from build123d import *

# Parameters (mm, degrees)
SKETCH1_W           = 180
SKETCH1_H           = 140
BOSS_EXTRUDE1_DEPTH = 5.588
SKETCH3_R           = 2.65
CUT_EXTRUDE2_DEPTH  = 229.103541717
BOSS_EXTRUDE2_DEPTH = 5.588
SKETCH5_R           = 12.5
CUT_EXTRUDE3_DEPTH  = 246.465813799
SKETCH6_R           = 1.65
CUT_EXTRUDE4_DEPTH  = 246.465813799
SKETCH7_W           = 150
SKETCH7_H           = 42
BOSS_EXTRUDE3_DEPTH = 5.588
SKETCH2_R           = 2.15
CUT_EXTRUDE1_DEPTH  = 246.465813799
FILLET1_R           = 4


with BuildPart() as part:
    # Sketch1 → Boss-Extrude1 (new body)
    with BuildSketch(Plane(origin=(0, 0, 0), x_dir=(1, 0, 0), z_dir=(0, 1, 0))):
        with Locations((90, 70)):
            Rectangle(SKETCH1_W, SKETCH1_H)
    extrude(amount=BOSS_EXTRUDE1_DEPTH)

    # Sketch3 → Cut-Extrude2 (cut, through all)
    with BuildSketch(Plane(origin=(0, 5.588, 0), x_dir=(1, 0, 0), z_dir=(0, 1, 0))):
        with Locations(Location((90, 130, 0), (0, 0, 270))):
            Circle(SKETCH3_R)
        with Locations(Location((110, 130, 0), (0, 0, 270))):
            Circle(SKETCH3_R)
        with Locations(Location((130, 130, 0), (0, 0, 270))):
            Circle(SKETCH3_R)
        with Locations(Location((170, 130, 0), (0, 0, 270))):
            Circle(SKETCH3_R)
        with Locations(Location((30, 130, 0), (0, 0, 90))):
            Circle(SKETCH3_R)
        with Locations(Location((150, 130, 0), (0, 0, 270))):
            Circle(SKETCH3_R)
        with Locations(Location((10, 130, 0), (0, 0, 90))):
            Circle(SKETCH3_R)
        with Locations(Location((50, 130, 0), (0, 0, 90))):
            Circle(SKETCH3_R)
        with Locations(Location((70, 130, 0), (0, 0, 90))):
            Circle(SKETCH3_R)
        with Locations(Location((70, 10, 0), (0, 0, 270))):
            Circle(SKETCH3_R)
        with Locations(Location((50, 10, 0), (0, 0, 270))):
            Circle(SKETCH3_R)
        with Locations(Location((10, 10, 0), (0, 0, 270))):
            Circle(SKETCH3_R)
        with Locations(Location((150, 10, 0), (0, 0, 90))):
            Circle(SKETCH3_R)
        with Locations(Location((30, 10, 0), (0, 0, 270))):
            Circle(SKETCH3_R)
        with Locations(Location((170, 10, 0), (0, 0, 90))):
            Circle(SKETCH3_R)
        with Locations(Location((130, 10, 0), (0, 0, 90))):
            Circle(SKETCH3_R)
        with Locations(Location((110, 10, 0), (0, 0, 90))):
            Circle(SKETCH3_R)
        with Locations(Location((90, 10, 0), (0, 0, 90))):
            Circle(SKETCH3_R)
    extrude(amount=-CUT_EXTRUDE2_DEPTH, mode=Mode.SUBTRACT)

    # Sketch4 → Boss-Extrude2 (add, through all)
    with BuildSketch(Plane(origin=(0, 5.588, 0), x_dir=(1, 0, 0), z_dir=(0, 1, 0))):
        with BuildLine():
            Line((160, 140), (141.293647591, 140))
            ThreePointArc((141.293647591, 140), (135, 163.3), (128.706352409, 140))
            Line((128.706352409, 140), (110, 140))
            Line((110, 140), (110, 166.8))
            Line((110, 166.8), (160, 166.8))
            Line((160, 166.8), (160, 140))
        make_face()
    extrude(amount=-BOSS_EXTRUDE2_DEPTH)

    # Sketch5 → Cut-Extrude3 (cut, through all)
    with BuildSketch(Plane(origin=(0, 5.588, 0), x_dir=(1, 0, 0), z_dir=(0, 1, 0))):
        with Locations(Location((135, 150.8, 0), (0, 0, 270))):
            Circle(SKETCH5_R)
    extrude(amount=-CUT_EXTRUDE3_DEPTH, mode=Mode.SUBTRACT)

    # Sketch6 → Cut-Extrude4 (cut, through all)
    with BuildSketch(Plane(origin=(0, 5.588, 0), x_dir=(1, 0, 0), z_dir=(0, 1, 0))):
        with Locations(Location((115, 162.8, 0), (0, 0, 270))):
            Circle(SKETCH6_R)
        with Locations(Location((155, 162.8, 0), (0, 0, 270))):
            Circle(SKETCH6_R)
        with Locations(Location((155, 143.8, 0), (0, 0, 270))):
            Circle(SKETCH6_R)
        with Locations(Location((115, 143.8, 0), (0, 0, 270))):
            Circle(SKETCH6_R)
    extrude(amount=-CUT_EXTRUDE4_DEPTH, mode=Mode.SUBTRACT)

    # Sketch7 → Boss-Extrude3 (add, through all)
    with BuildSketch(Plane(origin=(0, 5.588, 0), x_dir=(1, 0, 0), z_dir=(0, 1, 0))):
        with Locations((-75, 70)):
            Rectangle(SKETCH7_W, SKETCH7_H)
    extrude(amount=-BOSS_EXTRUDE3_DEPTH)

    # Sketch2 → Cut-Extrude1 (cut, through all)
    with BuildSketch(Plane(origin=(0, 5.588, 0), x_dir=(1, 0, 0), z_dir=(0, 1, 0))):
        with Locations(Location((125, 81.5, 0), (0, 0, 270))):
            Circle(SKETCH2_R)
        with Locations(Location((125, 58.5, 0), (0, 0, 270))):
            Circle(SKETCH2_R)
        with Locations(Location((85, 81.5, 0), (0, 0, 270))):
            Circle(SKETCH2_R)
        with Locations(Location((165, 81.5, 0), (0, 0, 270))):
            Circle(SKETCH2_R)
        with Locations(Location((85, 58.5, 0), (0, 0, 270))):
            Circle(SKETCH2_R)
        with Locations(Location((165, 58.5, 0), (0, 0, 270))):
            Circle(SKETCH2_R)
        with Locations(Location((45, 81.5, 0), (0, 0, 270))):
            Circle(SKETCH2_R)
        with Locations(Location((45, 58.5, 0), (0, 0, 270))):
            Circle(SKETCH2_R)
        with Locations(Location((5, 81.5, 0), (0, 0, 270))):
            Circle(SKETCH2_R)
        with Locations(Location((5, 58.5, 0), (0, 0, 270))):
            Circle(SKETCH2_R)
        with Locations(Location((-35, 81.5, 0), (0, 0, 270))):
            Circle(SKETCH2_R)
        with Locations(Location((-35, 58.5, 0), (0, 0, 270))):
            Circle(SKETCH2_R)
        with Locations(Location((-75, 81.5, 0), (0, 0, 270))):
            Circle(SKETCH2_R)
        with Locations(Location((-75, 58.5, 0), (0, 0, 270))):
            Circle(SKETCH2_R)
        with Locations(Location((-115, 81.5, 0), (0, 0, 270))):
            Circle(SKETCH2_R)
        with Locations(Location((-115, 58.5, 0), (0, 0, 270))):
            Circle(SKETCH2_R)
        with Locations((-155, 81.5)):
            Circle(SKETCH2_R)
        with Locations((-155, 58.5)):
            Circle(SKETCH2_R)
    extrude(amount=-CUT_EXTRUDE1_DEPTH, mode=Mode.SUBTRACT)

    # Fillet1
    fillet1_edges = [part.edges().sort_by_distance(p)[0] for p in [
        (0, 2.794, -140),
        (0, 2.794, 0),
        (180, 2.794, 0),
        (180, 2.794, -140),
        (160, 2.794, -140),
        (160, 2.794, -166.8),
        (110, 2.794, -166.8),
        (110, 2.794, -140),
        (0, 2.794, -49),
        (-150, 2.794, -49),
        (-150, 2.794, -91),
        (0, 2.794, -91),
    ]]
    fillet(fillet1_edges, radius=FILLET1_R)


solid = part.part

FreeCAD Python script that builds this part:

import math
import FreeCAD as App
import Part
import Sketcher


def edges_at(feature, points):
    """Names of the edges that pass closest to the given points."""
    edges = feature.Shape.Edges
    near = lambda p: min(range(len(edges)), key=lambda i: edges[i].distToShape(Part.Vertex(*p))[0])
    return sorted({f"Edge{near(p) + 1}" for p in points})

doc = App.newDocument("Part")
body = doc.addObject("PartDesign::Body", "Body")

sketch1 = body.newObject("Sketcher::SketchObject", "Sketch")
sketch1.AttachmentSupport = (doc.getObject("XZ_Plane"), [""])
sketch1.MapMode = "FlatFace"
sketch1.addGeometry([
    Part.LineSegment(App.Vector(0, -140, 0), App.Vector(0, 0, 0)),
    Part.LineSegment(App.Vector(0, 0, 0), App.Vector(180, 0, 0)),
    Part.LineSegment(App.Vector(180, 0, 0), App.Vector(180, -140, 0)),
    Part.LineSegment(App.Vector(180, -140, 0), App.Vector(0, -140, 0)),
], False)
sketch1.addConstraint([
    Sketcher.Constraint("Coincident", 0, 2, 1, 1),
    Sketcher.Constraint("Coincident", 1, 2, 2, 1),
    Sketcher.Constraint("Coincident", 2, 2, 3, 1),
    Sketcher.Constraint("Coincident", 3, 2, 0, 1),
    Sketcher.Constraint("Vertical", 0),
    Sketcher.Constraint("Horizontal", 1),
    Sketcher.Constraint("Vertical", 2),
    Sketcher.Constraint("Horizontal", 3),
    Sketcher.Constraint("Coincident", 0, 2, -1, 1),
    Sketcher.Constraint("DistanceX", 1, 1, 1, 2, 180.0),
    Sketcher.Constraint("DistanceY", 0, 1, 0, 2, 140.0),
])
pad1 = body.newObject("PartDesign::Pad", "Pad")
pad1.Profile = sketch1
pad1.Length = 5.588
pad1.Reversed = True

sketch2 = body.newObject("Sketcher::SketchObject", "Sketch001")
sketch2.AttachmentSupport = (doc.getObject("XZ_Plane"), [""])
sketch2.MapMode = "FlatFace"
sketch2.AttachmentOffset = App.Placement(App.Vector(0, 0, -5.588), App.Rotation())
sketch2.addGeometry([
    Part.Circle(App.Vector(90, -130, 0), App.Vector(0, 0, 1), 2.6),
    Part.Circle(App.Vector(110, -130, 0), App.Vector(0, 0, 1), 2.6),
    Part.Circle(App.Vector(130, -130, 0), App.Vector(0, 0, 1), 2.6),
    Part.Circle(App.Vector(170, -130, 0), App.Vector(0, 0, 1), 2.6),
    Part.Circle(App.Vector(30, -130, 0), App.Vector(0, 0, 1), 2.6),
    Part.Circle(App.Vector(150, -130, 0), App.Vector(0, 0, 1), 2.6),
    Part.Circle(App.Vector(10, -130, 0), App.Vector(0, 0, 1), 2.6),
    Part.Circle(App.Vector(50, -130, 0), App.Vector(0, 0, 1), 2.6),
    Part.Circle(App.Vector(70, -130, 0), App.Vector(0, 0, 1), 2.6),
    Part.Circle(App.Vector(70, -10, 0), App.Vector(0, 0, 1), 2.6),
    Part.Circle(App.Vector(50, -10, 0), App.Vector(0, 0, 1), 2.6),
    Part.Circle(App.Vector(10, -10, 0), App.Vector(0, 0, 1), 2.6),
    Part.Circle(App.Vector(150, -10, 0), App.Vector(0, 0, 1), 2.6),
    Part.Circle(App.Vector(30, -10, 0), App.Vector(0, 0, 1), 2.6),
    Part.Circle(App.Vector(170, -10, 0), App.Vector(0, 0, 1), 2.6),
    Part.Circle(App.Vector(130, -10, 0), App.Vector(0, 0, 1), 2.6),
    Part.Circle(App.Vector(110, -10, 0), App.Vector(0, 0, 1), 2.6),
    Part.Circle(App.Vector(90, -10, 0), App.Vector(0, 0, 1), 2.6),
], False)
sketch2.addConstraint([
    Sketcher.Constraint("Equal", 0, 1),
    Sketcher.Constraint("Equal", 1, 2),
    Sketcher.Constraint("Equal", 2, 3),
    Sketcher.Constraint("Equal", 3, 4),
    Sketcher.Constraint("Equal", 4, 5),
    Sketcher.Constraint("Equal", 5, 6),
    Sketcher.Constraint("Equal", 6, 7),
    Sketcher.Constraint("Equal", 7, 8),
    Sketcher.Constraint("Equal", 8, 9),
    Sketcher.Constraint("Equal", 9, 10),
    Sketcher.Constraint("Equal", 10, 11),
    Sketcher.Constraint("Equal", 11, 12),
    Sketcher.Constraint("Equal", 12, 13),
    Sketcher.Constraint("Equal", 13, 14),
    Sketcher.Constraint("Equal", 14, 15),
    Sketcher.Constraint("Equal", 15, 16),
    Sketcher.Constraint("Equal", 16, 17),
    Sketcher.Constraint("Horizontal", 0, 3, 1, 3),
    Sketcher.Constraint("Horizontal", 1, 3, 2, 3),
    Sketcher.Constraint("Horizontal", 2, 3, 3, 3),
    Sketcher.Constraint("Horizontal", 3, 3, 4, 3),
    Sketcher.Constraint("Horizontal", 4, 3, 5, 3),
    Sketcher.Constraint("Horizontal", 5, 3, 6, 3),
    Sketcher.Constraint("Horizontal", 6, 3, 7, 3),
    Sketcher.Constraint("Horizontal", 7, 3, 8, 3),
    Sketcher.Constraint("Horizontal", 9, 3, 10, 3),
    Sketcher.Constraint("Horizontal", 10, 3, 11, 3),
    Sketcher.Constraint("Horizontal", 11, 3, 12, 3),
    Sketcher.Constraint("Horizontal", 12, 3, 13, 3),
    Sketcher.Constraint("Horizontal", 13, 3, 14, 3),
    Sketcher.Constraint("Horizontal", 14, 3, 15, 3),
    Sketcher.Constraint("Horizontal", 15, 3, 16, 3),
    Sketcher.Constraint("Horizontal", 16, 3, 17, 3),
    Sketcher.Constraint("Vertical", 8, 3, 9, 3),
    Sketcher.Constraint("Vertical", 7, 3, 10, 3),
    Sketcher.Constraint("Vertical", 6, 3, 11, 3),
    Sketcher.Constraint("Vertical", 5, 3, 12, 3),
    Sketcher.Constraint("Vertical", 4, 3, 13, 3),
    Sketcher.Constraint("Vertical", 3, 3, 14, 3),
    Sketcher.Constraint("Vertical", 2, 3, 15, 3),
    Sketcher.Constraint("Vertical", 1, 3, 16, 3),
    Sketcher.Constraint("Vertical", 0, 3, 17, 3),
    Sketcher.Constraint("Diameter", 0, 5.3),
    Sketcher.Constraint("DistanceX", -1, 1, 0, 3, 90.0),
    Sketcher.Constraint("DistanceY", 0, 3, -1, 1, 130.0),
    Sketcher.Constraint("DistanceX", -1, 1, 1, 3, 110.0),
    Sketcher.Constraint("DistanceX", -1, 1, 2, 3, 130.0),
    Sketcher.Constraint("DistanceX", -1, 1, 3, 3, 170.0),
    Sketcher.Constraint("DistanceX", -1, 1, 4, 3, 30.0),
    Sketcher.Constraint("DistanceX", -1, 1, 5, 3, 150.0),
    Sketcher.Constraint("DistanceX", -1, 1, 6, 3, 10.0),
    Sketcher.Constraint("DistanceX", -1, 1, 7, 3, 50.0),
    Sketcher.Constraint("DistanceX", -1, 1, 8, 3, 70.0),
    Sketcher.Constraint("DistanceY", 9, 3, -1, 1, 10.0),
])
pocket1 = body.newObject("PartDesign::Pocket", "Pocket")
pocket1.Profile = sketch2
pocket1.Type = "ThroughAll"
pocket1.Reversed = True

sketch3 = body.newObject("Sketcher::SketchObject", "Sketch002")
sketch3.AttachmentSupport = (doc.getObject("XZ_Plane"), [""])
sketch3.MapMode = "FlatFace"
sketch3.AttachmentOffset = App.Placement(App.Vector(0, 0, -5.588), App.Rotation())
sketch3.addGeometry([
    Part.LineSegment(App.Vector(141, -140, 0), App.Vector(160, -140, 0)),
    Part.LineSegment(App.Vector(160, -140, 0), App.Vector(160, -167, 0)),
    Part.LineSegment(App.Vector(160, -167, 0), App.Vector(110, -167, 0)),
    Part.LineSegment(App.Vector(110, -167, 0), App.Vector(110, -140, 0)),
    Part.LineSegment(App.Vector(110, -140, 0), App.Vector(129, -140, 0)),
    Part.ArcOfCircle(Part.Circle(App.Vector(135, -151, 0), App.Vector(0, 0, 1), 12), math.radians(120), math.radians(420)),
], False)
sketch3.addConstraint([
    Sketcher.Constraint("Coincident", 0, 2, 1, 1),
    Sketcher.Constraint("Coincident", 1, 2, 2, 1),
    Sketcher.Constraint("Coincident", 2, 2, 3, 1),
    Sketcher.Constraint("Coincident", 3, 2, 4, 1),
    Sketcher.Constraint("Coincident", 4, 2, 5, 1),
    Sketcher.Constraint("Coincident", 5, 2, 0, 1),
    Sketcher.Constraint("Horizontal", 0),
    Sketcher.Constraint("Vertical", 1),
    Sketcher.Constraint("Horizontal", 2),
    Sketcher.Constraint("Vertical", 3),
    Sketcher.Constraint("Horizontal", 4),
    Sketcher.Constraint("Horizontal", 0, 2, 3, 2),
    Sketcher.Constraint("Equal", 0, 4),
    Sketcher.Constraint("Radius", 5, 12.5),
    Sketcher.Constraint("DistanceX", 2, 2, 2, 1, 50.0),
    Sketcher.Constraint("DistanceY", 1, 2, 1, 1, 26.8),
    Sketcher.Constraint("DistanceX", -1, 1, 5, 3, 135.0),
    Sketcher.Constraint("DistanceY", 0, 2, -1, 1, 140.0),
    Sketcher.Constraint("DistanceY", 1, 2, 5, 3, 16.0),
])
pad2 = body.newObject("PartDesign::Pad", "Pad001")
pad2.Profile = sketch3
pad2.Length = 5.588

sketch4 = body.newObject("Sketcher::SketchObject", "Sketch003")
sketch4.AttachmentSupport = (doc.getObject("XZ_Plane"), [""])
sketch4.MapMode = "FlatFace"
sketch4.AttachmentOffset = App.Placement(App.Vector(0, 0, -5.588), App.Rotation())
sketch4.addGeometry(Part.Circle(App.Vector(135, -151, 0), App.Vector(0, 0, 1), 12), False)
sketch4.addConstraint([
    Sketcher.Constraint("Diameter", 0, 25.0),
    Sketcher.Constraint("DistanceX", -1, 1, 0, 3, 135.0),
    Sketcher.Constraint("DistanceY", 0, 3, -1, 1, 150.8),
])
pocket2 = body.newObject("PartDesign::Pocket", "Pocket001")
pocket2.Profile = sketch4
pocket2.Type = "ThroughAll"
pocket2.Reversed = True

sketch5 = body.newObject("Sketcher::SketchObject", "Sketch004")
sketch5.AttachmentSupport = (doc.getObject("XZ_Plane"), [""])
sketch5.MapMode = "FlatFace"
sketch5.AttachmentOffset = App.Placement(App.Vector(0, 0, -5.588), App.Rotation())
sketch5.addGeometry([
    Part.Circle(App.Vector(115, -162.8, 0), App.Vector(0, 0, 1), 1.6),
    Part.Circle(App.Vector(155, -162.8, 0), App.Vector(0, 0, 1), 1.6),
    Part.Circle(App.Vector(155, -143.8, 0), App.Vector(0, 0, 1), 1.6),
    Part.Circle(App.Vector(115, -143.8, 0), App.Vector(0, 0, 1), 1.6),
], False)
sketch5.addConstraint([
    Sketcher.Constraint("Equal", 0, 1),
    Sketcher.Constraint("Equal", 1, 2),
    Sketcher.Constraint("Equal", 2, 3),
    Sketcher.Constraint("Horizontal", 0, 3, 1, 3),
    Sketcher.Constraint("Horizontal", 2, 3, 3, 3),
    Sketcher.Constraint("Vertical", 1, 3, 2, 3),
    Sketcher.Constraint("Vertical", 0, 3, 3, 3),
    Sketcher.Constraint("Diameter", 0, 3.3),
    Sketcher.Constraint("DistanceX", -1, 1, 0, 3, 115.0),
    Sketcher.Constraint("DistanceX", -1, 1, 1, 3, 155.0),
    Sketcher.Constraint("DistanceY", 1, 3, 2, 3, 19.0),
    Sketcher.Constraint("DistanceY", 0, 3, -1, 1, 162.8),
])
pocket3 = body.newObject("PartDesign::Pocket", "Pocket002")
pocket3.Profile = sketch5
pocket3.Type = "ThroughAll"
pocket3.Reversed = True

sketch6 = body.newObject("Sketcher::SketchObject", "Sketch005")
sketch6.AttachmentSupport = (doc.getObject("XZ_Plane"), [""])
sketch6.MapMode = "FlatFace"
sketch6.AttachmentOffset = App.Placement(App.Vector(0, 0, -5.588), App.Rotation())
sketch6.addGeometry([
    Part.LineSegment(App.Vector(-150, -91, 0), App.Vector(-150, -49, 0)),
    Part.LineSegment(App.Vector(-150, -49, 0), App.Vector(0, -49, 0)),
    Part.LineSegment(App.Vector(0, -49, 0), App.Vector(0, -91, 0)),
    Part.LineSegment(App.Vector(0, -91, 0), App.Vector(-150, -91, 0)),
], False)
sketch6.addConstraint([
    Sketcher.Constraint("Coincident", 0, 2, 1, 1),
    Sketcher.Constraint("Coincident", 1, 2, 2, 1),
    Sketcher.Constraint("Coincident", 2, 2, 3, 1),
    Sketcher.Constraint("Coincident", 3, 2, 0, 1),
    Sketcher.Constraint("Vertical", 0),
    Sketcher.Constraint("Horizontal", 1),
    Sketcher.Constraint("Vertical", 2),
    Sketcher.Constraint("Horizontal", 3),
    Sketcher.Constraint("PointOnObject", 1, 2, -2),
    Sketcher.Constraint("DistanceX", 1, 1, 1, 2, 150.0),
    Sketcher.Constraint("DistanceY", 0, 1, 0, 2, 42.0),
    Sketcher.Constraint("DistanceY", 0, 2, -1, 1, 49.0),
])
pad3 = body.newObject("PartDesign::Pad", "Pad002")
pad3.Profile = sketch6
pad3.Length = 5.588

sketch7 = body.newObject("Sketcher::SketchObject", "Sketch006")
sketch7.AttachmentSupport = (doc.getObject("XZ_Plane"), [""])
sketch7.MapMode = "FlatFace"
sketch7.AttachmentOffset = App.Placement(App.Vector(0, 0, -5.588), App.Rotation())
sketch7.addGeometry([
    Part.Circle(App.Vector(125, -81.5, 0), App.Vector(0, 0, 1), 2.1),
    Part.Circle(App.Vector(125, -58.5, 0), App.Vector(0, 0, 1), 2.1),
    Part.Circle(App.Vector(85, -81.5, 0), App.Vector(0, 0, 1), 2.1),
    Part.Circle(App.Vector(165, -81.5, 0), App.Vector(0, 0, 1), 2.1),
    Part.Circle(App.Vector(85, -58.5, 0), App.Vector(0, 0, 1), 2.1),
    Part.Circle(App.Vector(165, -58.5, 0), App.Vector(0, 0, 1), 2.1),
    Part.Circle(App.Vector(45, -81.5, 0), App.Vector(0, 0, 1), 2.1),
    Part.Circle(App.Vector(45, -58.5, 0), App.Vector(0, 0, 1), 2.1),
    Part.Circle(App.Vector(5, -81.5, 0), App.Vector(0, 0, 1), 2.1),
    Part.Circle(App.Vector(5, -58.5, 0), App.Vector(0, 0, 1), 2.1),
    Part.Circle(App.Vector(-35, -81.5, 0), App.Vector(0, 0, 1), 2.1),
    Part.Circle(App.Vector(-35, -58.5, 0), App.Vector(0, 0, 1), 2.1),
    Part.Circle(App.Vector(-75, -81.5, 0), App.Vector(0, 0, 1), 2.1),
    Part.Circle(App.Vector(-75, -58.5, 0), App.Vector(0, 0, 1), 2.1),
    Part.Circle(App.Vector(-115, -81.5, 0), App.Vector(0, 0, 1), 2.1),
    Part.Circle(App.Vector(-115, -58.5, 0), App.Vector(0, 0, 1), 2.1),
    Part.Circle(App.Vector(-155, -81.5, 0), App.Vector(0, 0, 1), 2.1),
    Part.Circle(App.Vector(-155, -58.5, 0), App.Vector(0, 0, 1), 2.1),
], False)
sketch7.addConstraint([
    Sketcher.Constraint("Equal", 0, 1),
    Sketcher.Constraint("Equal", 1, 2),
    Sketcher.Constraint("Equal", 2, 3),
    Sketcher.Constraint("Equal", 3, 4),
    Sketcher.Constraint("Equal", 4, 5),
    Sketcher.Constraint("Equal", 5, 6),
    Sketcher.Constraint("Equal", 6, 7),
    Sketcher.Constraint("Equal", 7, 8),
    Sketcher.Constraint("Equal", 8, 9),
    Sketcher.Constraint("Equal", 9, 10),
    Sketcher.Constraint("Equal", 10, 11),
    Sketcher.Constraint("Equal", 11, 12),
    Sketcher.Constraint("Equal", 12, 13),
    Sketcher.Constraint("Equal", 13, 14),
    Sketcher.Constraint("Equal", 14, 15),
    Sketcher.Constraint("Equal", 15, 16),
    Sketcher.Constraint("Equal", 16, 17),
    Sketcher.Constraint("Horizontal", 0, 3, 2, 3),
    Sketcher.Constraint("Horizontal", 2, 3, 3, 3),
    Sketcher.Constraint("Horizontal", 1, 3, 4, 3),
    Sketcher.Constraint("Horizontal", 4, 3, 5, 3),
    Sketcher.Constraint("Horizontal", 3, 3, 6, 3),
    Sketcher.Constraint("Horizontal", 5, 3, 7, 3),
    Sketcher.Constraint("Horizontal", 6, 3, 8, 3),
    Sketcher.Constraint("Horizontal", 7, 3, 9, 3),
    Sketcher.Constraint("Horizontal", 8, 3, 10, 3),
    Sketcher.Constraint("Horizontal", 9, 3, 11, 3),
    Sketcher.Constraint("Horizontal", 10, 3, 12, 3),
    Sketcher.Constraint("Horizontal", 11, 3, 13, 3),
    Sketcher.Constraint("Horizontal", 12, 3, 14, 3),
    Sketcher.Constraint("Horizontal", 13, 3, 15, 3),
    Sketcher.Constraint("Horizontal", 14, 3, 16, 3),
    Sketcher.Constraint("Horizontal", 15, 3, 17, 3),
    Sketcher.Constraint("Vertical", 0, 3, 1, 3),
    Sketcher.Constraint("Vertical", 2, 3, 4, 3),
    Sketcher.Constraint("Vertical", 3, 3, 5, 3),
    Sketcher.Constraint("Vertical", 6, 3, 7, 3),
    Sketcher.Constraint("Vertical", 8, 3, 9, 3),
    Sketcher.Constraint("Vertical", 10, 3, 11, 3),
    Sketcher.Constraint("Vertical", 12, 3, 13, 3),
    Sketcher.Constraint("Vertical", 14, 3, 15, 3),
    Sketcher.Constraint("Vertical", 16, 3, 17, 3),
    Sketcher.Constraint("Diameter", 0, 4.3),
    Sketcher.Constraint("DistanceX", -1, 1, 0, 3, 125.0),
    Sketcher.Constraint("DistanceX", -1, 1, 2, 3, 85.0),
    Sketcher.Constraint("DistanceX", -1, 1, 3, 3, 165.0),
    Sketcher.Constraint("DistanceX", -1, 1, 6, 3, 45.0),
    Sketcher.Constraint("DistanceX", -1, 1, 8, 3, 5.0),
    Sketcher.Constraint("DistanceX", 10, 3, -1, 1, 35.0),
    Sketcher.Constraint("DistanceX", 12, 3, -1, 1, 75.0),
    Sketcher.Constraint("DistanceX", 14, 3, -1, 1, 115.0),
    Sketcher.Constraint("DistanceX", 16, 3, -1, 1, 155.0),
    Sketcher.Constraint("DistanceY", 0, 3, 1, 3, 23.0),
    Sketcher.Constraint("DistanceY", 0, 3, -1, 1, 81.5),
])
pocket4 = body.newObject("PartDesign::Pocket", "Pocket003")
pocket4.Profile = sketch7
pocket4.Type = "ThroughAll"
pocket4.Reversed = True
doc.recompute()

fillet = body.newObject("PartDesign::Fillet", "Fillet")
fillet.Base = (pocket4, edges_at(pocket4, [
    (0, 2.794, -140),
    (0, 2.794, 0),
    (180, 2.794, 0),
    (180, 2.794, -140),
    (160, 2.794, -140),
    (160, 2.794, -166.8),
    (110, 2.794, -166.8),
    (110, 2.794, -140),
    (0, 2.794, -49),
    (-150, 2.794, -49),
    (-150, 2.794, -91),
    (0, 2.794, -91),
]))
fillet.Radius = 4

doc.recompute()
